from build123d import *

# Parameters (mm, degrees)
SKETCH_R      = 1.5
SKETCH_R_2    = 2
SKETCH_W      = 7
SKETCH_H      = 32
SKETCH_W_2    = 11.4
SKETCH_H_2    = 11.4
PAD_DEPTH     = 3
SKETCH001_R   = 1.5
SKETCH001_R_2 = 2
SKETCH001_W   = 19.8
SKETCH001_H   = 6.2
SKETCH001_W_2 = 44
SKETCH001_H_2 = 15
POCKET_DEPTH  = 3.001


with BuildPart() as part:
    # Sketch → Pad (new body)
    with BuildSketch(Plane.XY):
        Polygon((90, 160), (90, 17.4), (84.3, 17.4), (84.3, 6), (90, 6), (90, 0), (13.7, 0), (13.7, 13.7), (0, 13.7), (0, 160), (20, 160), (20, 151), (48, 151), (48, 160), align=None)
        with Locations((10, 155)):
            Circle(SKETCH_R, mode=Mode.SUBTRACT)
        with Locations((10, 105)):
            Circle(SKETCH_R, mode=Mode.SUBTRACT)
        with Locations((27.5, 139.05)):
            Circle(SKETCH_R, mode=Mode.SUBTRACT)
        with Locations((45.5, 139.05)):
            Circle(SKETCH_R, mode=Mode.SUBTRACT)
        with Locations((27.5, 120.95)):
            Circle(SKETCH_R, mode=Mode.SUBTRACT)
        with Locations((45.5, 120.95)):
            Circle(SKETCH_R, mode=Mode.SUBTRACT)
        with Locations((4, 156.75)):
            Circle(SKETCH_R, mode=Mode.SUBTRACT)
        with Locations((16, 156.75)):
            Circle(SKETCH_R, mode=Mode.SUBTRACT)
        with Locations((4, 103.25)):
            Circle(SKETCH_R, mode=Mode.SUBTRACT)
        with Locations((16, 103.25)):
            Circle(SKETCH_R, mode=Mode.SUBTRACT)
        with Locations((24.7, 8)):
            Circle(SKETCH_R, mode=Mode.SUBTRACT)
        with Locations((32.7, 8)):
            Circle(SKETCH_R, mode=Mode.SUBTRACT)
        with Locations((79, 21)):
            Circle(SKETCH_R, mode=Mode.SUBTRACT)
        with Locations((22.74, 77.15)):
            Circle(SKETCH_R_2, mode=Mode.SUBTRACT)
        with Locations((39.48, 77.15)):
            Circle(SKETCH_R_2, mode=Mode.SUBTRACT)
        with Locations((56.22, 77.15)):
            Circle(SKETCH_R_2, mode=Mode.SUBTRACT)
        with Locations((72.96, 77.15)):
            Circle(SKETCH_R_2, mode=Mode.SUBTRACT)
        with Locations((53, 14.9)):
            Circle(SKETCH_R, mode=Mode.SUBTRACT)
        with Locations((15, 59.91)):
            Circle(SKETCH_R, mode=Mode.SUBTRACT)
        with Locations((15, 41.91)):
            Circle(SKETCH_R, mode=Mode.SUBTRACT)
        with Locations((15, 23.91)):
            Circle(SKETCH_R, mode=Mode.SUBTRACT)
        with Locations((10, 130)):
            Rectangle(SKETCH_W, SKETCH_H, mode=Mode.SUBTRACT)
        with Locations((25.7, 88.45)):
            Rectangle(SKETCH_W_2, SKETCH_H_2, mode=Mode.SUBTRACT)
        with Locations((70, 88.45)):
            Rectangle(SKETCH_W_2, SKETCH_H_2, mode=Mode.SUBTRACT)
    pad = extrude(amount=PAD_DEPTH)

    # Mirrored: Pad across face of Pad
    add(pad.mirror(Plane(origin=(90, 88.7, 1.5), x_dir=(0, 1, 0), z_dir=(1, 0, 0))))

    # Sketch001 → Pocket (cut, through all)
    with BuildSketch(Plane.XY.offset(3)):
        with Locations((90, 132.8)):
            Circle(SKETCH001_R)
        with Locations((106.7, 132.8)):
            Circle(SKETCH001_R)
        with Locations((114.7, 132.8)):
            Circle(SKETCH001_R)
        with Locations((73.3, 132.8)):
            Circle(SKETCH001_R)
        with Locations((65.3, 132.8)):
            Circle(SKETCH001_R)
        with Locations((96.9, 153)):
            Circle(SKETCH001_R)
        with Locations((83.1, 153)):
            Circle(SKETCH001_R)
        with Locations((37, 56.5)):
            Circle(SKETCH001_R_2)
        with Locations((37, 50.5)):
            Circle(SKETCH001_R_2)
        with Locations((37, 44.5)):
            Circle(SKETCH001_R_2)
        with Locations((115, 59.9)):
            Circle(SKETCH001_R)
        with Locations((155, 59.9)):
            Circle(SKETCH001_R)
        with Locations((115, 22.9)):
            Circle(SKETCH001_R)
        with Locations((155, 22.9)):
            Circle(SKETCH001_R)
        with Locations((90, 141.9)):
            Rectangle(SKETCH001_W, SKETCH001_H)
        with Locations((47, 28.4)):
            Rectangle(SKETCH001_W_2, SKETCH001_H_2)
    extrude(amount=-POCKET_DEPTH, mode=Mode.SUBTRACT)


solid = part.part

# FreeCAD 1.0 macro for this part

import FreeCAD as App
import Part
import Sketcher
from FreeCAD import Vector
Q = App.Units.Quantity


def add_polygon(sketch, points):
    """Adds a closed chain of lines whose ends are joined by coincident constraints."""
    first, n = sketch.GeometryCount, len(points)
    for a, b in zip(points, points[1:] + points[:1]):
        sketch.addGeometry(Part.LineSegment(App.Vector(*a, 0), App.Vector(*b, 0)), False)
    for i in range(n):
        sketch.addConstraint(Sketcher.Constraint("Coincident", first + i, 2, first + (i + 1) % n, 1))

doc = App.newDocument("Part")
params = doc.addObject("Spreadsheet::Sheet", "Params")
for row, (alias, value) in enumerate([
    ("sketch1_diameter", "3 mm"),
    ("sketch1_diameter2", "4 mm"),
    ("sketch1_width", "42 mm"),
    ("sketch1_width2", "28 mm"),
    ("sketch1_width3", "20 mm"),
    ("pad1_length", "3 mm"),
    ("sketch2_diameter", "3 mm"),
    ("sketch2_diameter2", "4 mm"),
    ("sketch2_width", "44 mm"),
    ("sketch2_height", "15 mm"),
    ("sketch2_width2", "19.8 mm"),
], start=1):
    params.set(f"A{row}", alias)
    params.set(f"B{row}", "=" + value)
    params.setAlias(f"B{row}", alias)

body = doc.addObject("PartDesign::Body", "Body")

# Sketch on XY plane
sketch1 = body.newObject("Sketcher::SketchObject", "Sketch")
sketch1.AttachmentSupport = (doc.getObject("XY_Plane"), [""])
sketch1.MapMode = "FlatFace"
add_polygon(sketch1, [(90, 17.4), (90, 160), (48, 160), (48, 151), (20, 151), (20, 160), (0, 160), (0, 13.7), (13.7, 13.7), (13.7, 0), (90, 0), (90, 6), (84.3, 6), (84.3, 17.4)])  # lines 0-13
sketch1.addGeometry(Part.Circle(Vector(79, 21, 0), Vector(0, 0, 1), 1.5), False)  # 14
sketch1.addGeometry(Part.Circle(Vector(53, 14.9, 0), Vector(0, 0, 1), 1.5), False)  # 15
sketch1.addGeometry(Part.Circle(Vector(73, 77.2, 0), Vector(0, 0, 1), 2), False)  # 16
sketch1.addGeometry(Part.Circle(Vector(56.2, 77.2, 0), Vector(0, 0, 1), 2), False)  # 17
sketch1.addGeometry(Part.Circle(Vector(32.7, 8, 0), Vector(0, 0, 1), 1.5), False)  # 18
sketch1.addGeometry(Part.Circle(Vector(24.7, 8, 0), Vector(0, 0, 1), 1.5), False)  # 19
sketch1.addGeometry(Part.Circle(Vector(15, 23.9, 0), Vector(0, 0, 1), 1.5), False)  # 20
sketch1.addGeometry(Part.Circle(Vector(15, 41.9, 0), Vector(0, 0, 1), 1.5), False)  # 21
sketch1.addGeometry(Part.Circle(Vector(39.5, 77.2, 0), Vector(0, 0, 1), 2), False)  # 22
sketch1.addGeometry(Part.Circle(Vector(22.7, 77.2, 0), Vector(0, 0, 1), 2), False)  # 23
sketch1.addGeometry(Part.Circle(Vector(15, 59.9, 0), Vector(0, 0, 1), 1.5), False)  # 24
add_polygon(sketch1, [(64.3, 82.8), (64.3, 94.2), (75.7, 94.2), (75.7, 82.8)])  # lines 25-28
sketch1.addGeometry(Part.Circle(Vector(45.5, 121, 0), Vector(0, 0, 1), 1.5), False)  # 29
sketch1.addGeometry(Part.Circle(Vector(45.5, 139.1, 0), Vector(0, 0, 1), 1.5), False)  # 30
add_polygon(sketch1, [(20, 82.8), (20, 94.2), (31.4, 94.2), (31.4, 82.8)])  # lines 31-34
sketch1.addGeometry(Part.Circle(Vector(16, 103.2, 0), Vector(0, 0, 1), 1.5), False)  # 35
sketch1.addGeometry(Part.Circle(Vector(10, 105, 0), Vector(0, 0, 1), 1.5), False)  # 36
sketch1.addGeometry(Part.Circle(Vector(4, 103.2, 0), Vector(0, 0, 1), 1.5), False)  # 37
sketch1.addGeometry(Part.Circle(Vector(27.5, 121, 0), Vector(0, 0, 1), 1.5), False)  # 38
sketch1.addGeometry(Part.Circle(Vector(27.5, 139.1, 0), Vector(0, 0, 1), 1.5), False)  # 39
add_polygon(sketch1, [(6.5, 114), (6.5, 146), (13.5, 146), (13.5, 114)])  # lines 40-43
sketch1.addGeometry(Part.Circle(Vector(16, 156.8, 0), Vector(0, 0, 1), 1.5), False)  # 44
sketch1.addGeometry(Part.Circle(Vector(10, 155, 0), Vector(0, 0, 1), 1.5), False)  # 45
sketch1.addGeometry(Part.Circle(Vector(4, 156.8, 0), Vector(0, 0, 1), 1.5), False)  # 46
sketch1.addConstraint([
    Sketcher.Constraint("Vertical", 0),
    Sketcher.Constraint("Horizontal", 1),
    Sketcher.Constraint("Vertical", 2),
    Sketcher.Constraint("Horizontal", 3),
    Sketcher.Constraint("Vertical", 4),
    Sketcher.Constraint("Horizontal", 5),
    Sketcher.Constraint("Vertical", 6),
    Sketcher.Constraint("Horizontal", 7),
    Sketcher.Constraint("Vertical", 8),
    Sketcher.Constraint("Horizontal", 9),
    Sketcher.Constraint("Vertical", 10),
    Sketcher.Constraint("Horizontal", 11),
    Sketcher.Constraint("Vertical", 12),
    Sketcher.Constraint("Horizontal", 13),
    Sketcher.Constraint("Vertical", 25),
    Sketcher.Constraint("Horizontal", 26),
    Sketcher.Constraint("Vertical", 27),
    Sketcher.Constraint("Horizontal", 28),
    Sketcher.Constraint("Vertical", 31),
    Sketcher.Constraint("Horizontal", 32),
    Sketcher.Constraint("Vertical", 33),
    Sketcher.Constraint("Horizontal", 34),
    Sketcher.Constraint("Vertical", 40),
    Sketcher.Constraint("Horizontal", 41),
    Sketcher.Constraint("Vertical", 42),
    Sketcher.Constraint("Horizontal", 43),
    Sketcher.Constraint("Equal", 14, 15),
    Sketcher.Constraint("Equal", 16, 17),
    Sketcher.Constraint("Equal", 15, 18),
    Sketcher.Constraint("Equal", 18, 19),
    Sketcher.Constraint("Equal", 19, 20),
    Sketcher.Constraint("Equal", 20, 21),
    Sketcher.Constraint("Equal", 17, 22),
    Sketcher.Constraint("Equal", 22, 23),
    Sketcher.Constraint("Equal", 21, 24),
    Sketcher.Constraint("Equal", 24, 29),
    Sketcher.Constraint("Equal", 29, 30),
    Sketcher.Constraint("Equal", 30, 35),
    Sketcher.Constraint("Equal", 35, 36),
    Sketcher.Constraint("Equal", 36, 37),
    Sketcher.Constraint("Equal", 37, 38),
    Sketcher.Constraint("Equal", 38, 39),
    Sketcher.Constraint("Equal", 39, 44),
    Sketcher.Constraint("Equal", 44, 45),
    Sketcher.Constraint("Equal", 45, 46),
    Sketcher.Constraint("PointOnObject", 5, 2, -2),
    Sketcher.Constraint("PointOnObject", 8, 2, -1),
    Sketcher.Constraint("Horizontal", 16, 3, 17, 3),
    Sketcher.Constraint("Horizontal", 18, 3, 19, 3),
    Sketcher.Constraint("Horizontal", 17, 3, 22, 3),
    Sketcher.Constraint("Horizontal", 22, 3, 23, 3),
    Sketcher.Constraint("Horizontal", 35, 3, 37, 3),
    Sketcher.Constraint("Horizontal", 29, 3, 38, 3),
    Sketcher.Constraint("Horizontal", 30, 3, 39, 3),
    Sketcher.Constraint("Horizontal", 44, 3, 46, 3),
    Sketcher.Constraint("Horizontal", 1, 2, 4, 2),
    Sketcher.Constraint("Horizontal", 26, 2, 31, 2),
    Sketcher.Constraint("Horizontal", 28, 2, 33, 2),
    Sketcher.Constraint("Vertical", 20, 3, 21, 3),
    Sketcher.Constraint("Vertical", 21, 3, 24, 3),
    Sketcher.Constraint("Vertical", 29, 3, 30, 3),
    Sketcher.Constraint("Vertical", 38, 3, 39, 3),
    Sketcher.Constraint("Vertical", 35, 3, 44, 3),
    Sketcher.Constraint("Vertical", 36, 3, 45, 3),
    Sketcher.Constraint("Vertical", 37, 3, 46, 3),
    Sketcher.Constraint("Vertical", 0, 2, 9, 2),
    Sketcher.Constraint("Vertical", 4, 2, 31, 2),
    Sketcher.Constraint("Equal", 28, 32),
    Sketcher.Constraint("Equal", 7, 8),
    Sketcher.Constraint("Equal", 34, 12),
    Sketcher.Constraint("Equal", 12, 25),
    Sketcher.Constraint("Diameter", 14, Q("3 mm")),
    Sketcher.Constraint("Diameter", 16, Q("4 mm")),
    Sketcher.Constraint("DistanceX", 1, 2, 1, 1, Q("42 mm")),
    Sketcher.Constraint("DistanceX", 3, 2, 3, 1, Q("28 mm")),
    Sketcher.Constraint("DistanceX", 5, 2, 5, 1, Q("20 mm")),
    Sketcher.Constraint("DistanceX", 41, 1, 41, 2, Q("7 mm")),
    Sketcher.Constraint("DistanceY", 2, 2, 2, 1, Q("9 mm")),
    Sketcher.Constraint("DistanceY", 10, 1, 10, 2, Q("6 mm")),
    Sketcher.Constraint("DistanceY", 40, 1, 40, 2, Q("32 mm")),
    Sketcher.Constraint("DistanceX", 7, 1, 7, 2, Q("13.7 mm")),
    Sketcher.Constraint("DistanceX", 11, 2, 11, 1, Q("5.7 mm")),
    Sketcher.Constraint("DistanceX", 26, 1, 26, 2, Q("11.4 mm")),
    Sketcher.Constraint("DistanceY", 0, 1, 0, 2, Q("142.6 mm")),
    Sketcher.Constraint("DistanceX", -1, 1, 14, 3, Q("79 mm")),
    Sketcher.Constraint("DistanceY", -1, 1, 14, 3, Q("21 mm")),
    Sketcher.Constraint("DistanceX", -1, 1, 15, 3, Q("53 mm")),
    Sketcher.Constraint("DistanceY", -1, 1, 18, 3, Q("8 mm")),
    Sketcher.Constraint("DistanceX", -1, 1, 20, 3, Q("15 mm")),
    Sketcher.Constraint("DistanceX", -1, 1, 35, 3, Q("16 mm")),
    Sketcher.Constraint("DistanceX", -1, 1, 36, 3, Q("10 mm")),
    Sketcher.Constraint("DistanceY", -1, 1, 36, 3, Q("105 mm")),
    Sketcher.Constraint("DistanceX", -1, 1, 37, 3, Q("4 mm")),
    Sketcher.Constraint("DistanceY", -1, 1, 45, 3, Q("155 mm")),
    Sketcher.Constraint("DistanceY", -1, 1, 40, 2, Q("146 mm")),
    Sketcher.Constraint("DistanceX", 19, 3, 18, 3, Q("8 mm")),
    Sketcher.Constraint("DistanceY", 20, 3, 21, 3, Q("18 mm")),
    Sketcher.Constraint("DistanceY", 21, 3, 24, 3, Q("18 mm")),
    Sketcher.Constraint("DistanceX", 38, 3, 29, 3, Q("18 mm")),
    Sketcher.Constraint("DistanceX", 7, 2, 19, 3, Q("11 mm")),
    Sketcher.Constraint("DistanceY", 17, 3, 25, 2, Q("17 mm")),
    Sketcher.Constraint("DistanceX", 42, 2, 38, 3, Q("14 mm")),
    Sketcher.Constraint("DistanceY", -1, 1, 15, 3, Q("14.9 mm")),
    Sketcher.Constraint("DistanceX", -1, 1, 29, 3, Q("45.5 mm")),
    Sketcher.Constraint("DistanceX", -1, 1, 25, 2, Q("64.3 mm")),
    Sketcher.Constraint("DistanceY", 22, 3, 29, 3, Q("43.8 mm")),
    Sketcher.Constraint("DistanceY", 29, 3, 30, 3, Q("18.1 mm")),
    Sketcher.Constraint("DistanceY", 23, 3, 35, 3, Q("26.1 mm")),
    Sketcher.Constraint("DistanceY", 39, 3, 44, 3, Q("17.7 mm")),
    Sketcher.Constraint("DistanceX", -1, 1, 16, 3, Q("72.96 mm")),
    Sketcher.Constraint("DistanceY", -1, 1, 16, 3, Q("77.15 mm")),
    Sketcher.Constraint("DistanceX", -1, 1, 17, 3, Q("56.22 mm")),
    Sketcher.Constraint("DistanceY", -1, 1, 20, 3, Q("23.91 mm")),
    Sketcher.Constraint("DistanceX", -1, 1, 22, 3, Q("39.48 mm")),
    Sketcher.Constraint("DistanceX", -1, 1, 23, 3, Q("22.74 mm")),
])
sketch1.setExpression("Constraints[97]", "Params.sketch1_diameter")
sketch1.setExpression("Constraints[98]", "Params.sketch1_diameter2")
sketch1.setExpression("Constraints[99]", "Params.sketch1_width")
sketch1.setExpression("Constraints[100]", "Params.sketch1_width2")
sketch1.setExpression("Constraints[101]", "Params.sketch1_width3")
pad1 = body.newObject("PartDesign::Pad", "Pad")
pad1.Profile = sketch1
pad1.setExpression("Length", "Params.pad1_length")
doc.recompute()

datumplane = body.newObject("PartDesign::Plane", "DatumPlane")
datumplane.AttachmentSupport = (doc.getObject("YZ_Plane"), [""])
datumplane.MapMode = "FlatFace"
datumplane.AttachmentOffset = App.Placement(Vector(0, 0, 90), App.Rotation())
mirrored = body.newObject("PartDesign::Mirrored", "Mirrored")
mirrored.Originals = [pad1]
mirrored.MirrorPlane = (datumplane, [""])
body.Tip = mirrored

# Sketch on XY plane
sketch2 = body.newObject("Sketcher::SketchObject", "Sketch001")
sketch2.AttachmentSupport = (doc.getObject("XY_Plane"), [""])
sketch2.MapMode = "FlatFace"
sketch2.AttachmentOffset = App.Placement(Vector(0, 0, 3), App.Rotation())
sketch2.addGeometry(Part.Circle(Vector(90, 132.8, 0), Vector(0, 0, 1), 1.5), False)  # 0
sketch2.addGeometry(Part.Circle(Vector(106.7, 132.8, 0), Vector(0, 0, 1), 1.5), False)  # 1
sketch2.addGeometry(Part.Circle(Vector(114.7, 132.8, 0), Vector(0, 0, 1), 1.5), False)  # 2
sketch2.addGeometry(Part.Circle(Vector(73.3, 132.8, 0), Vector(0, 0, 1), 1.5), False)  # 3
sketch2.addGeometry(Part.Circle(Vector(65.3, 132.8, 0), Vector(0, 0, 1), 1.5), False)  # 4
sketch2.addGeometry(Part.Circle(Vector(96.9, 153, 0), Vector(0, 0, 1), 1.5), False)  # 5
sketch2.addGeometry(Part.Circle(Vector(83.1, 153, 0), Vector(0, 0, 1), 1.5), False)  # 6
sketch2.addGeometry(Part.Circle(Vector(37, 56.5, 0), Vector(0, 0, 1), 2), False)  # 7
sketch2.addGeometry(Part.Circle(Vector(37, 50.5, 0), Vector(0, 0, 1), 2), False)  # 8
sketch2.addGeometry(Part.Circle(Vector(37, 44.5, 0), Vector(0, 0, 1), 2), False)  # 9
sketch2.addGeometry(Part.Circle(Vector(115, 59.9, 0), Vector(0, 0, 1), 1.5), False)  # 10
sketch2.addGeometry(Part.Circle(Vector(155, 59.9, 0), Vector(0, 0, 1), 1.5), False)  # 11
sketch2.addGeometry(Part.Circle(Vector(115, 22.9, 0), Vector(0, 0, 1), 1.5), False)  # 12
sketch2.addGeometry(Part.Circle(Vector(155, 22.9, 0), Vector(0, 0, 1), 1.5), False)  # 13
add_polygon(sketch2, [(80.1, 145), (80.1, 138.8), (99.9, 138.8), (99.9, 145)])  # lines 14-17
add_polygon(sketch2, [(25, 35.9), (25, 20.9), (69, 20.9), (69, 35.9)])  # lines 18-21
sketch2.addConstraint([
    Sketcher.Constraint("Vertical", 14),
    Sketcher.Constraint("Horizontal", 15),
    Sketcher.Constraint("Vertical", 16),
    Sketcher.Constraint("Horizontal", 17),
    Sketcher.Constraint("Vertical", 18),
    Sketcher.Constraint("Horizontal", 19),
    Sketcher.Constraint("Vertical", 20),
    Sketcher.Constraint("Horizontal", 21),
    Sketcher.Constraint("Equal", 0, 1),
    Sketcher.Constraint("Equal", 1, 2),
    Sketcher.Constraint("Equal", 2, 3),
    Sketcher.Constraint("Equal", 3, 4),
    Sketcher.Constraint("Equal", 4, 5),
    Sketcher.Constraint("Equal", 5, 6),
    Sketcher.Constraint("Equal", 7, 8),
    Sketcher.Constraint("Equal", 8, 9),
    Sketcher.Constraint("Equal", 6, 10),
    Sketcher.Constraint("Equal", 10, 11),
    Sketcher.Constraint("Equal", 11, 12),
    Sketcher.Constraint("Equal", 12, 13),
    Sketcher.Constraint("Horizontal", 0, 3, 1, 3),
    Sketcher.Constraint("Horizontal", 1, 3, 2, 3),
    Sketcher.Constraint("Horizontal", 2, 3, 3, 3),
    Sketcher.Constraint("Horizontal", 3, 3, 4, 3),
    Sketcher.Constraint("Horizontal", 5, 3, 6, 3),
    Sketcher.Constraint("Horizontal", 10, 3, 11, 3),
    Sketcher.Constraint("Horizontal", 12, 3, 13, 3),
    Sketcher.Constraint("Vertical", 7, 3, 8, 3),
    Sketcher.Constraint("Vertical", 8, 3, 9, 3),
    Sketcher.Constraint("Vertical", 10, 3, 12, 3),
    Sketcher.Constraint("Vertical", 11, 3, 13, 3),
    Sketcher.Constraint("Diameter", 0, Q("3 mm")),
    Sketcher.Constraint("Diameter", 7, Q("4 mm")),
    Sketcher.Constraint("DistanceX", 19, 1, 19, 2, Q("44 mm")),
    Sketcher.Constraint("DistanceY", 18, 2, 18, 1, Q("15 mm")),
    Sketcher.Constraint("DistanceX", 15, 1, 15, 2, Q("19.8 mm")),
    Sketcher.Constraint("DistanceY", 14, 2, 14, 1, Q("6.2 mm")),
    Sketcher.Constraint("DistanceX", -1, 1, 0, 3, Q("90 mm")),
    Sketcher.Constraint("DistanceY", -1, 1, 5, 3, Q("153 mm")),
    Sketcher.Constraint("DistanceX", -1, 1, 7, 3, Q("37 mm")),
    Sketcher.Constraint("DistanceX", -1, 1, 10, 3, Q("115 mm")),
    Sketcher.Constraint("DistanceX", -1, 1, 11, 3, Q("155 mm")),
    Sketcher.Constraint("DistanceY", -1, 1, 16, 2, Q("145 mm")),
    Sketcher.Constraint("DistanceX", -1, 1, 18, 2, Q("25 mm")),
    Sketcher.Constraint("DistanceX", 1, 3, 2, 3, Q("8 mm")),
    Sketcher.Constraint("DistanceX", 4, 3, 3, 3, Q("8 mm")),
    Sketcher.Constraint("DistanceY", 8, 3, 7, 3, Q("6 mm")),
    Sketcher.Constraint("DistanceY", 9, 3, 8, 3, Q("6 mm")),
    Sketcher.Constraint("DistanceY", 12, 3, 10, 3, Q("37 mm")),
    Sketcher.Constraint("DistanceY", 3, 3, 14, 2, Q("6 mm")),
    Sketcher.Constraint("DistanceX", 14, 2, 6, 3, Q("3 mm")),
    Sketcher.Constraint("DistanceX", 5, 3, 15, 2, Q("3 mm")),
    Sketcher.Constraint("DistanceY", 18, 2, 12, 3, Q("2 mm")),
    Sketcher.Constraint("DistanceX", -1, 1, 1, 3, Q("106.7 mm")),
    Sketcher.Constraint("DistanceX", -1, 1, 3, 3, Q("73.3 mm")),
    Sketcher.Constraint("DistanceX", -1, 1, 5, 3, Q("96.9 mm")),
    Sketcher.Constraint("DistanceY", -1, 1, 7, 3, Q("56.5 mm")),
    Sketcher.Constraint("DistanceY", -1, 1, 10, 3, Q("59.9 mm")),
])
sketch2.setExpression("Constraints[39]", "Params.sketch2_diameter")
sketch2.setExpression("Constraints[40]", "Params.sketch2_diameter2")
sketch2.setExpression("Constraints[41]", "Params.sketch2_width")
sketch2.setExpression("Constraints[42]", "Params.sketch2_height")
sketch2.setExpression("Constraints[43]", "Params.sketch2_width2")
pocket1 = body.newObject("PartDesign::Pocket", "Pocket")
pocket1.Profile = sketch2
pocket1.Type = "ThroughAll"

doc.recompute()
